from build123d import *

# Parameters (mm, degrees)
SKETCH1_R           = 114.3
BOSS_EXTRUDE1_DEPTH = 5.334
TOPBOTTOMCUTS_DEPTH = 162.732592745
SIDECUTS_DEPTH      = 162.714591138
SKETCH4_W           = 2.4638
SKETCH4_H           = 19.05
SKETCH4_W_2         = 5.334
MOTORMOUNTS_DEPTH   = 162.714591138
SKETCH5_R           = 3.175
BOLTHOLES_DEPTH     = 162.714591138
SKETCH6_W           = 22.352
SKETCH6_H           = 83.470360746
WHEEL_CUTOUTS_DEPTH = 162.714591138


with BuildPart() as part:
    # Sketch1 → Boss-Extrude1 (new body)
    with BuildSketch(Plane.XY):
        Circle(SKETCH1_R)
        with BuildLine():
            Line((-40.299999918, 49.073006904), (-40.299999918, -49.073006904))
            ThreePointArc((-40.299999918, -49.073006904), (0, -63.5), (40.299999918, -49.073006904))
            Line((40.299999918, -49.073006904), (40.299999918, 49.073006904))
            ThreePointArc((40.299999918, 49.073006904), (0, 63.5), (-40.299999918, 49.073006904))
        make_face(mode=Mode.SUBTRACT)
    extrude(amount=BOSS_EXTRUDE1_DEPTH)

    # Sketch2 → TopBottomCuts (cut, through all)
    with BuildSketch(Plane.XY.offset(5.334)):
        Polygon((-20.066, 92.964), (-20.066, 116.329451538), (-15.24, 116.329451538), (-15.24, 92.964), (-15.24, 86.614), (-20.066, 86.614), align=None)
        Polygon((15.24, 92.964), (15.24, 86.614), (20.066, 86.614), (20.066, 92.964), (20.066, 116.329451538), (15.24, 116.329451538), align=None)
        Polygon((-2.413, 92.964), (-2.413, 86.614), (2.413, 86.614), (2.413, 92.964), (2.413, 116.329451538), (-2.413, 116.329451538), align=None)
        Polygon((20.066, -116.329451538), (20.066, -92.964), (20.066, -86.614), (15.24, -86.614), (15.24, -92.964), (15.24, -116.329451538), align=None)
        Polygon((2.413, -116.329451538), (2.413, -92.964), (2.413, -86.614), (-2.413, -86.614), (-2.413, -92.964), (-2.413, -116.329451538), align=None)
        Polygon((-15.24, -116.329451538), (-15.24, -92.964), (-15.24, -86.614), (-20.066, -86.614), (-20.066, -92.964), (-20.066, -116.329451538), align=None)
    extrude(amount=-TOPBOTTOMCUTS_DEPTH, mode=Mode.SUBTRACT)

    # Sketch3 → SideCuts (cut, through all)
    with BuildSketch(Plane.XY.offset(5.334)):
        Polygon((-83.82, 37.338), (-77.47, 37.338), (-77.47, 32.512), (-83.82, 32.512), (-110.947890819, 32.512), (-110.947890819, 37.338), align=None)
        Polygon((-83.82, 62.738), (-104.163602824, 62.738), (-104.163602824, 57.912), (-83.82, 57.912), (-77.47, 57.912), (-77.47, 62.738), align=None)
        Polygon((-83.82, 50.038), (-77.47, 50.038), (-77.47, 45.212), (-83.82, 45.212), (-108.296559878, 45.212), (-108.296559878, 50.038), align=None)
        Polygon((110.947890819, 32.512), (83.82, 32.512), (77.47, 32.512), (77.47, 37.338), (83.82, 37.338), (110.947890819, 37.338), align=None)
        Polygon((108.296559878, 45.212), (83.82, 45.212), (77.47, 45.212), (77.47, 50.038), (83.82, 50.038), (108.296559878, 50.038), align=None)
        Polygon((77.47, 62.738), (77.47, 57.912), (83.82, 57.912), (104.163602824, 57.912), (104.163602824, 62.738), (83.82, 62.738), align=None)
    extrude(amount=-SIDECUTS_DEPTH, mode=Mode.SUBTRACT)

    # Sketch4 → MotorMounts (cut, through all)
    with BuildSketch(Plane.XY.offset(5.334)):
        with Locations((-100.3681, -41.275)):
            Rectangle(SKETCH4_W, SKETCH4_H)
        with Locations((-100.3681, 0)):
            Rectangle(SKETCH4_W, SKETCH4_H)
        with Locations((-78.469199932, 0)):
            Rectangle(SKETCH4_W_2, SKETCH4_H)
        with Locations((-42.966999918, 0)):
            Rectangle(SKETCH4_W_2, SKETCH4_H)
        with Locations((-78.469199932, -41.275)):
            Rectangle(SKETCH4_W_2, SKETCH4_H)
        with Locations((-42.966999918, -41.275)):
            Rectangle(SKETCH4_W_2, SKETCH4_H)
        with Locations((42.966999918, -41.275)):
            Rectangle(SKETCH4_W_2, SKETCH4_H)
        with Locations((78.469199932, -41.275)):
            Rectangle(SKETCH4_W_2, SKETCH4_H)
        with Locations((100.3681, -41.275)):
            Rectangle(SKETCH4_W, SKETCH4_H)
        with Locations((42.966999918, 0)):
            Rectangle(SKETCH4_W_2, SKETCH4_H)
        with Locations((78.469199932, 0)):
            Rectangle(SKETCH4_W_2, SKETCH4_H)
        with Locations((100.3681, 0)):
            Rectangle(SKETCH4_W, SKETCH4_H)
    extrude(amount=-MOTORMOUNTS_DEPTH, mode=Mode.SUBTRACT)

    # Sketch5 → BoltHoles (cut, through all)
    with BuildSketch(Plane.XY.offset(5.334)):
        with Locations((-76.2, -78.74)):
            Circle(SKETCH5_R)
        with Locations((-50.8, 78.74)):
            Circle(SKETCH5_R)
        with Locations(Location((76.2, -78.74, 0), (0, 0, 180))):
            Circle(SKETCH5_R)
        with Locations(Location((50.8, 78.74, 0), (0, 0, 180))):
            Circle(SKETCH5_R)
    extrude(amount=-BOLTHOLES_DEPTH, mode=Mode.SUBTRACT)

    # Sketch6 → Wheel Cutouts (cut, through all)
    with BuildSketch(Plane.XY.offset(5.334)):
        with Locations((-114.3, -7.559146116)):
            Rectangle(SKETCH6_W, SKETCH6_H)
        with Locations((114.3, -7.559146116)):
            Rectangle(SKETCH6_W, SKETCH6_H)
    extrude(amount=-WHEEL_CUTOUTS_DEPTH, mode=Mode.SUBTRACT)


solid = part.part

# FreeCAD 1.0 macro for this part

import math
import FreeCAD as App
import Part
import Sketcher

V = App.Vector
Q = App.Units.Quantity


def add_polygon(sketch, points):
    """Adds a closed chain of lines whose ends are joined by coincident constraints."""
    first, n = sketch.GeometryCount, len(points)
    for a, b in zip(points, points[1:] + points[:1]):
        sketch.addGeometry(Part.LineSegment(App.Vector(*a, 0), App.Vector(*b, 0)), False)
    for i in range(n):
        sketch.addConstraint(Sketcher.Constraint("Coincident", first + i, 2, first + (i + 1) % n, 1))

doc = App.newDocument("Part")
body = doc.addObject("PartDesign::Body", "Body")

# Sketch on XY plane
sketch1 = doc.addObject("Sketcher::SketchObject", "Sketch")
body.addObject(sketch1)
sketch1.AttachmentSupport = (doc.XY_Plane, [""])
sketch1.MapMode = "FlatFace"
sketch1.addGeometry(Part.Circle(V(0, 0, 0), V(0, 0, 1), 114.3), False)
sketch1.addGeometry(Part.LineSegment(V(-40.3, -49.073007, 0), V(-40.3, 49.073007, 0)), False)
sketch1.addGeometry(Part.ArcOfCircle(Part.Circle(V(0, 0, 0), V(0, 0, 1), 63.5), math.radians(50.606291), math.radians(129.393709)), False)
sketch1.addGeometry(Part.LineSegment(V(40.3, 49.073007, 0), V(40.3, -49.073007, 0)), False)
sketch1.addGeometry(Part.ArcOfCircle(Part.Circle(V(0, 0, 0), V(0, 0, 1), 63.5), math.radians(-129.393709), math.radians(-50.606291)), False)
sketch1.addConstraint(Sketcher.Constraint("Coincident", 1, 2, 2, 2))
sketch1.addConstraint(Sketcher.Constraint("Coincident", 2, 1, 3, 1))
sketch1.addConstraint(Sketcher.Constraint("Coincident", 3, 2, 4, 2))
sketch1.addConstraint(Sketcher.Constraint("Coincident", 4, 1, 1, 1))
sketch1.addConstraint(Sketcher.Constraint("Vertical", 1))
sketch1.addConstraint(Sketcher.Constraint("Vertical", 3))
sketch1.addConstraint(Sketcher.Constraint("Coincident", 0, 3, -1, 1))
sketch1.addConstraint(Sketcher.Constraint("Coincident", 2, 3, -1, 1))
sketch1.addConstraint(Sketcher.Constraint("Coincident", 4, 3, -1, 1))
sketch1.addConstraint(Sketcher.Constraint("Equal", 2, 4))
sketch1.addConstraint(Sketcher.Constraint("Horizontal", 1, 2, 2, 1))
sketch1.addConstraint(Sketcher.Constraint("Diameter", 0, Q("9 in")))
sketch1.addConstraint(Sketcher.Constraint("Radius", 2, Q("2.5 in")))
sketch1.addConstraint(Sketcher.Constraint("DistanceX", 1, 2, -1, 1, 40.3))
pad1 = doc.addObject("PartDesign::Pad", "Pad")
body.addObject(pad1)
pad1.Profile = sketch1
pad1.Length = Q("0.21 in")

# Sketch on XY plane
sketch2 = doc.addObject("Sketcher::SketchObject", "Sketch001")
body.addObject(sketch2)
sketch2.AttachmentSupport = (doc.XY_Plane, [""])
sketch2.MapMode = "FlatFace"
sketch2.AttachmentOffset = App.Placement(V(0, 0, 0.21 * 25.4), App.Rotation())
add_polygon(sketch2, [(-20.066, 116.329452), (-20.066, 86.614), (-15.24, 86.614), (-15.24, 116.329452)])  # lines 0-3
add_polygon(sketch2, [(15.24, 86.614), (20.066, 86.614), (20.066, 116.329452), (15.24, 116.329452)])  # lines 4-7
add_polygon(sketch2, [(-2.413, 86.614), (2.413, 86.614), (2.413, 116.329452), (-2.413, 116.329452)])  # lines 8-11
add_polygon(sketch2, [(20.066, -116.329452), (20.066, -86.614), (15.24, -86.614), (15.24, -116.329452)])  # lines 12-15
add_polygon(sketch2, [(2.413, -116.329452), (2.413, -86.614), (-2.413, -86.614), (-2.413, -116.329452)])  # lines 16-19
add_polygon(sketch2, [(-15.24, -116.329452), (-15.24, -86.614), (-20.066, -86.614), (-20.066, -116.329452)])  # lines 20-23
sketch2.addConstraint(Sketcher.Constraint("Vertical", 0))
sketch2.addConstraint(Sketcher.Constraint("Horizontal", 1))
sketch2.addConstraint(Sketcher.Constraint("Vertical", 2))
sketch2.addConstraint(Sketcher.Constraint("Horizontal", 3))
sketch2.addConstraint(Sketcher.Constraint("Horizontal", 4))
sketch2.addConstraint(Sketcher.Constraint("Vertical", 5))
sketch2.addConstraint(Sketcher.Constraint("Horizontal", 6))
sketch2.addConstraint(Sketcher.Constraint("Vertical", 7))
sketch2.addConstraint(Sketcher.Constraint("Horizontal", 8))
sketch2.addConstraint(Sketcher.Constraint("Vertical", 9))
sketch2.addConstraint(Sketcher.Constraint("Horizontal", 10))
sketch2.addConstraint(Sketcher.Constraint("Vertical", 11))
sketch2.addConstraint(Sketcher.Constraint("Vertical", 12))
sketch2.addConstraint(Sketcher.Constraint("Horizontal", 13))
sketch2.addConstraint(Sketcher.Constraint("Vertical", 14))
sketch2.addConstraint(Sketcher.Constraint("Horizontal", 15))
sketch2.addConstraint(Sketcher.Constraint("Vertical", 16))
sketch2.addConstraint(Sketcher.Constraint("Horizontal", 17))
sketch2.addConstraint(Sketcher.Constraint("Vertical", 18))
sketch2.addConstraint(Sketcher.Constraint("Horizontal", 19))
sketch2.addConstraint(Sketcher.Constraint("Vertical", 20))
sketch2.addConstraint(Sketcher.Constraint("Horizontal", 21))
sketch2.addConstraint(Sketcher.Constraint("Vertical", 22))
sketch2.addConstraint(Sketcher.Constraint("Horizontal", 23))
sketch2.addConstraint(Sketcher.Constraint("Symmetric", 0, 2, 12, 2, -1, 1))
sketch2.addConstraint(Sketcher.Constraint("Symmetric", 2, 2, 14, 2, -1, 1))
sketch2.addConstraint(Sketcher.Constraint("Symmetric", 11, 2, 16, 2, -1, 1))
sketch2.addConstraint(Sketcher.Constraint("Symmetric", 9, 2, 18, 2, -1, 1))
sketch2.addConstraint(Sketcher.Constraint("Symmetric", 7, 2, 20, 2, -1, 1))
sketch2.addConstraint(Sketcher.Constraint("Symmetric", 5, 2, 22, 2, -1, 1))
sketch2.addConstraint(Sketcher.Constraint("Symmetric", 0, 2, 4, 2, -2))
sketch2.addConstraint(Sketcher.Constraint("Symmetric", 2, 2, 6, 2, -2))
sketch2.addConstraint(Sketcher.Constraint("Horizontal", 7, 2, 8, 2))
sketch2.addConstraint(Sketcher.Constraint("Horizontal", 6, 2, 9, 2))
sketch2.addConstraint(Sketcher.Constraint("Vertical", 9, 2, 16, 2))
sketch2.addConstraint(Sketcher.Constraint("Equal", 6, 8))
sketch2.addConstraint(Sketcher.Constraint("DistanceX", 1, 1, 1, 2, Q("0.19 in")))
sketch2.addConstraint(Sketcher.Constraint("DistanceX", 1, 2, -1, 1, Q("0.6 in")))
sketch2.addConstraint(Sketcher.Constraint("DistanceY", -1, 1, 0, 2, Q("3.41 in")))
sketch2.addConstraint(Sketcher.Constraint("DistanceY", 0, 2, 0, 1, 29.715452))
pocket1 = doc.addObject("PartDesign::Pocket", "Pocket")
body.addObject(pocket1)
pocket1.Profile = sketch2
pocket1.Type = "ThroughAll"

# Sketch on XY plane
sketch3 = doc.addObject("Sketcher::SketchObject", "Sketch002")
body.addObject(sketch3)
sketch3.AttachmentSupport = (doc.XY_Plane, [""])
sketch3.MapMode = "FlatFace"
sketch3.AttachmentOffset = App.Placement(V(0, 0, 0.21 * 25.4), App.Rotation())
add_polygon(sketch3, [(-77.47, 37.338), (-110.947891, 37.338), (-110.947891, 32.512), (-77.47, 32.512)])  # lines 0-3
add_polygon(sketch3, [(-104.163603, 62.738), (-104.163603, 57.912), (-77.47, 57.912), (-77.47, 62.738)])  # lines 4-7
add_polygon(sketch3, [(-77.47, 50.038), (-108.29656, 50.038), (-108.29656, 45.212), (-77.47, 45.212)])  # lines 8-11
add_polygon(sketch3, [(77.47, 32.512), (110.947891, 32.512), (110.947891, 37.338), (77.47, 37.338)])  # lines 12-15
add_polygon(sketch3, [(77.47, 45.212), (108.29656, 45.212), (108.29656, 50.038), (77.47, 50.038)])  # lines 16-19
add_polygon(sketch3, [(77.47, 62.738), (77.47, 57.912), (104.163603, 57.912), (104.163603, 62.738)])  # lines 20-23
sketch3.addConstraint(Sketcher.Constraint("Horizontal", 0))
sketch3.addConstraint(Sketcher.Constraint("Vertical", 1))
sketch3.addConstraint(Sketcher.Constraint("Horizontal", 2))
sketch3.addConstraint(Sketcher.Constraint("Vertical", 3))
sketch3.addConstraint(Sketcher.Constraint("Vertical", 4))
sketch3.addConstraint(Sketcher.Constraint("Horizontal", 5))
sketch3.addConstraint(Sketcher.Constraint("Vertical", 6))
sketch3.addConstraint(Sketcher.Constraint("Horizontal", 7))
sketch3.addConstraint(Sketcher.Constraint("Horizontal", 8))
sketch3.addConstraint(Sketcher.Constraint("Vertical", 9))
sketch3.addConstraint(Sketcher.Constraint("Horizontal", 10))
sketch3.addConstraint(Sketcher.Constraint("Vertical", 11))
sketch3.addConstraint(Sketcher.Constraint("Horizontal", 12))
sketch3.addConstraint(Sketcher.Constraint("Vertical", 13))
sketch3.addConstraint(Sketcher.Constraint("Horizontal", 14))
sketch3.addConstraint(Sketcher.Constraint("Vertical", 15))
sketch3.addConstraint(Sketcher.Constraint("Horizontal", 16))
sketch3.addConstraint(Sketcher.Constraint("Vertical", 17))
sketch3.addConstraint(Sketcher.Constraint("Horizontal", 18))
sketch3.addConstraint(Sketcher.Constraint("Vertical", 19))
sketch3.addConstraint(Sketcher.Constraint("Vertical", 20))
sketch3.addConstraint(Sketcher.Constraint("Horizontal", 21))
sketch3.addConstraint(Sketcher.Constraint("Vertical", 22))
sketch3.addConstraint(Sketcher.Constraint("Horizontal", 23))
sketch3.addConstraint(Sketcher.Constraint("Symmetric", 1, 2, 12, 2, -2))
sketch3.addConstraint(Sketcher.Constraint("Symmetric", 3, 2, 14, 2, -2))
sketch3.addConstraint(Sketcher.Constraint("Symmetric", 9, 2, 16, 2, -2))
sketch3.addConstraint(Sketcher.Constraint("Symmetric", 11, 2, 18, 2, -2))
sketch3.addConstraint(Sketcher.Constraint("Symmetric", 5, 2, 20, 2, -2))
sketch3.addConstraint(Sketcher.Constraint("Symmetric", 7, 2, 22, 2, -2))
sketch3.addConstraint(Sketcher.Constraint("Vertical", 3, 2, 5, 2))
sketch3.addConstraint(Sketcher.Constraint("Vertical", 6, 2, 10, 2))
sketch3.addConstraint(Sketcher.Constraint("Equal", 3, 4))
sketch3.addConstraint(Sketcher.Constraint("Equal", 6, 9))
sketch3.addConstraint(Sketcher.Constraint("DistanceY", 1, 2, 4, 2, Q("1 in")))
sketch3.addConstraint(Sketcher.Constraint("DistanceY", 1, 2, 1, 1, Q("0.19 in")))
sketch3.addConstraint(Sketcher.Constraint("DistanceY", 0, 2, 8, 2, Q("0.5 in")))
sketch3.addConstraint(Sketcher.Constraint("DistanceX", 3, 2, 14, 2, Q("6.1 in")))
sketch3.addConstraint(Sketcher.Constraint("DistanceY", -1, 1, 0, 2, Q("1.47 in")))
sketch3.addConstraint(Sketcher.Constraint("DistanceX", 0, 2, 0, 1, 33.477891))
sketch3.addConstraint(Sketcher.Constraint("DistanceX", 8, 2, 8, 1, 30.82656))
sketch3.addConstraint(Sketcher.Constraint("DistanceX", 5, 1, 5, 2, 26.693603))
pocket2 = doc.addObject("PartDesign::Pocket", "Pocket001")
body.addObject(pocket2)
pocket2.Profile = sketch3
pocket2.Type = "ThroughAll"

# Sketch on XY plane
sketch4 = doc.addObject("Sketcher::SketchObject", "Sketch003")
body.addObject(sketch4)
sketch4.AttachmentSupport = (doc.XY_Plane, [""])
sketch4.MapMode = "FlatFace"
sketch4.AttachmentOffset = App.Placement(V(0, 0, 0.21 * 25.4), App.Rotation())
add_polygon(sketch4, [(-101.6, -31.75), (-101.6, -50.8), (-99.1362, -50.8), (-99.1362, -31.75)])  # lines 0-3
add_polygon(sketch4, [(-101.6, 9.525), (-101.6, -9.525), (-99.1362, -9.525), (-99.1362, 9.525)])  # lines 4-7
add_polygon(sketch4, [(-81.1362, 9.525), (-81.1362, -9.525), (-75.8022, -9.525), (-75.8022, 9.525)])  # lines 8-11
add_polygon(sketch4, [(-45.634, 9.525), (-45.634, -9.525), (-40.3, -9.525), (-40.3, 9.525)])  # lines 12-15
add_polygon(sketch4, [(-81.1362, -31.75), (-81.1362, -50.8), (-75.8022, -50.8), (-75.8022, -31.75)])  # lines 16-19
add_polygon(sketch4, [(-45.634, -31.75), (-45.634, -50.8), (-40.3, -50.8), (-40.3, -31.75)])  # lines 20-23
add_polygon(sketch4, [(40.3, -31.75), (40.3, -50.8), (45.634, -50.8), (45.634, -31.75)])  # lines 24-27
add_polygon(sketch4, [(75.8022, -31.75), (75.8022, -50.8), (81.1362, -50.8), (81.1362, -31.75)])  # lines 28-31
add_polygon(sketch4, [(99.1362, -31.75), (99.1362, -50.8), (101.6, -50.8), (101.6, -31.75)])  # lines 32-35
add_polygon(sketch4, [(40.3, 9.525), (40.3, -9.525), (45.634, -9.525), (45.634, 9.525)])  # lines 36-39
add_polygon(sketch4, [(75.8022, 9.525), (75.8022, -9.525), (81.1362, -9.525), (81.1362, 9.525)])  # lines 40-43
add_polygon(sketch4, [(99.1362, 9.525), (99.1362, -9.525), (101.6, -9.525), (101.6, 9.525)])  # lines 44-47
sketch4.addConstraint(Sketcher.Constraint("Vertical", 0))
sketch4.addConstraint(Sketcher.Constraint("Horizontal", 1))
sketch4.addConstraint(Sketcher.Constraint("Vertical", 2))
sketch4.addConstraint(Sketcher.Constraint("Horizontal", 3))
sketch4.addConstraint(Sketcher.Constraint("Vertical", 4))
sketch4.addConstraint(Sketcher.Constraint("Horizontal", 5))
sketch4.addConstraint(Sketcher.Constraint("Vertical", 6))
sketch4.addConstraint(Sketcher.Constraint("Horizontal", 7))
sketch4.addConstraint(Sketcher.Constraint("Vertical", 8))
sketch4.addConstraint(Sketcher.Constraint("Horizontal", 9))
sketch4.addConstraint(Sketcher.Constraint("Vertical", 10))
sketch4.addConstraint(Sketcher.Constraint("Horizontal", 11))
sketch4.addConstraint(Sketcher.Constraint("Vertical", 12))
sketch4.addConstraint(Sketcher.Constraint("Horizontal", 13))
sketch4.addConstraint(Sketcher.Constraint("Vertical", 14))
sketch4.addConstraint(Sketcher.Constraint("Horizontal", 15))
sketch4.addConstraint(Sketcher.Constraint("Vertical", 16))
sketch4.addConstraint(Sketcher.Constraint("Horizontal", 17))
sketch4.addConstraint(Sketcher.Constraint("Vertical", 18))
sketch4.addConstraint(Sketcher.Constraint("Horizontal", 19))
sketch4.addConstraint(Sketcher.Constraint("Vertical", 20))
sketch4.addConstraint(Sketcher.Constraint("Horizontal", 21))
sketch4.addConstraint(Sketcher.Constraint("Vertical", 22))
sketch4.addConstraint(Sketcher.Constraint("Horizontal", 23))
sketch4.addConstraint(Sketcher.Constraint("Vertical", 24))
sketch4.addConstraint(Sketcher.Constraint("Horizontal", 25))
sketch4.addConstraint(Sketcher.Constraint("Vertical", 26))
sketch4.addConstraint(Sketcher.Constraint("Horizontal", 27))
sketch4.addConstraint(Sketcher.Constraint("Vertical", 28))
sketch4.addConstraint(Sketcher.Constraint("Horizontal", 29))
sketch4.addConstraint(Sketcher.Constraint("Vertical", 30))
sketch4.addConstraint(Sketcher.Constraint("Horizontal", 31))
sketch4.addConstraint(Sketcher.Constraint("Vertical", 32))
sketch4.addConstraint(Sketcher.Constraint("Horizontal", 33))
sketch4.addConstraint(Sketcher.Constraint("Vertical", 34))
sketch4.addConstraint(Sketcher.Constraint("Horizontal", 35))
sketch4.addConstraint(Sketcher.Constraint("Vertical", 36))
sketch4.addConstraint(Sketcher.Constraint("Horizontal", 37))
sketch4.addConstraint(Sketcher.Constraint("Vertical", 38))
sketch4.addConstraint(Sketcher.Constraint("Horizontal", 39))
sketch4.addConstraint(Sketcher.Constraint("Vertical", 40))
sketch4.addConstraint(Sketcher.Constraint("Horizontal", 41))
sketch4.addConstraint(Sketcher.Constraint("Vertical", 42))
sketch4.addConstraint(Sketcher.Constraint("Horizontal", 43))
sketch4.addConstraint(Sketcher.Constraint("Vertical", 44))
sketch4.addConstraint(Sketcher.Constraint("Horizontal", 45))
sketch4.addConstraint(Sketcher.Constraint("Vertical", 46))
sketch4.addConstraint(Sketcher.Constraint("Horizontal", 47))
sketch4.addConstraint(Sketcher.Constraint("Symmetric", 14, 2, 36, 2, -1, 1))
sketch4.addConstraint(Sketcher.Constraint("Symmetric", 12, 2, 38, 2, -1, 1))
sketch4.addConstraint(Sketcher.Constraint("Symmetric", 10, 2, 40, 2, -1, 1))
sketch4.addConstraint(Sketcher.Constraint("Symmetric", 8, 2, 42, 2, -1, 1))
sketch4.addConstraint(Sketcher.Constraint("Symmetric", 6, 2, 44, 2, -1, 1))
sketch4.addConstraint(Sketcher.Constraint("Symmetric", 4, 2, 46, 2, -1, 1))
sketch4.addConstraint(Sketcher.Constraint("Symmetric", 21, 2, 24, 2, -2))
sketch4.addConstraint(Sketcher.Constraint("Symmetric", 23, 2, 26, 2, -2))
sketch4.addConstraint(Sketcher.Constraint("Symmetric", 17, 2, 28, 2, -2))
sketch4.addConstraint(Sketcher.Constraint("Symmetric", 19, 2, 30, 2, -2))
sketch4.addConstraint(Sketcher.Constraint("Symmetric", 1, 2, 32, 2, -2))
sketch4.addConstraint(Sketcher.Constraint("Symmetric", 3, 2, 34, 2, -2))
sketch4.addConstraint(Sketcher.Constraint("Horizontal", 5, 2, 8, 2))
sketch4.addConstraint(Sketcher.Constraint("Horizontal", 7, 2, 10, 2))
sketch4.addConstraint(Sketcher.Constraint("Horizontal", 9, 2, 12, 2))
sketch4.addConstraint(Sketcher.Constraint("Horizontal", 11, 2, 14, 2))
sketch4.addConstraint(Sketcher.Constraint("Horizontal", 1, 2, 16, 2))
sketch4.addConstraint(Sketcher.Constraint("Horizontal", 3, 2, 18, 2))
sketch4.addConstraint(Sketcher.Constraint("Horizontal", 17, 2, 20, 2))
sketch4.addConstraint(Sketcher.Constraint("Horizontal", 19, 2, 22, 2))
sketch4.addConstraint(Sketcher.Constraint("Horizontal", 13, 2, 36, 2))
sketch4.addConstraint(Sketcher.Constraint("Vertical", 3, 2, 4, 2))
sketch4.addConstraint(Sketcher.Constraint("Vertical", 2, 2, 5, 2))
sketch4.addConstraint(Sketcher.Constraint("Vertical", 11, 2, 16, 2))
sketch4.addConstraint(Sketcher.Constraint("Vertical", 10, 2, 17, 2))
sketch4.addConstraint(Sketcher.Constraint("Vertical", 15, 2, 20, 2))
sketch4.addConstraint(Sketcher.Constraint("Vertical", 14, 2, 21, 2))
sketch4.addConstraint(Sketcher.Constraint("Equal", 11, 13))
sketch4.addConstraint(Sketcher.Constraint("Equal", 2, 4))
sketch4.addConstraint(Sketcher.Constraint("DistanceX", 0, 2, -1, 1, Q("4 in")))
sketch4.addConstraint(Sketcher.Constraint("DistanceY", 0, 2, -1, 1, Q("2 in")))
sketch4.addConstraint(Sketcher.Constraint("DistanceX", 9, 1, 9, 2, Q("0.21 in")))
sketch4.addConstraint(Sketcher.Constraint("DistanceY", 0, 2, 0, 1, Q("0.75 in")))
sketch4.addConstraint(Sketcher.Constraint("DistanceX", 1, 1, 1, 2, Q("0.097 in")))
sketch4.addConstraint(Sketcher.Constraint("DistanceX", 8, 2, -1, 1, 81.1362))
sketch4.addConstraint(Sketcher.Constraint("DistanceX", 12, 2, -1, 1, 45.634))
pocket3 = doc.addObject("PartDesign::Pocket", "Pocket002")
body.addObject(pocket3)
pocket3.Profile = sketch4
pocket3.Type = "ThroughAll"

# Sketch on XY plane
sketch5 = doc.addObject("Sketcher::SketchObject", "Sketch004")
body.addObject(sketch5)
sketch5.AttachmentSupport = (doc.XY_Plane, [""])
sketch5.MapMode = "FlatFace"
sketch5.AttachmentOffset = App.Placement(V(0, 0, 0.21 * 25.4), App.Rotation())
sketch5.addGeometry(Part.Circle(V(-76.2, -78.74, 0), V(0, 0, 1), 3.175), False)
sketch5.addGeometry(Part.Circle(V(-50.8, 78.74, 0), V(0, 0, 1), 3.175), False)
sketch5.addGeometry(Part.Circle(V(76.2, -78.74, 0), V(0, 0, 1), 3.175), False)
sketch5.addGeometry(Part.Circle(V(50.8, 78.74, 0), V(0, 0, 1), 3.175), False)
sketch5.addConstraint(Sketcher.Constraint("Equal", 0, 1))
sketch5.addConstraint(Sketcher.Constraint("Equal", 1, 2))
sketch5.addConstraint(Sketcher.Constraint("Equal", 2, 3))
sketch5.addConstraint(Sketcher.Constraint("Symmetric", 0, 3, 2, 3, -2))
sketch5.addConstraint(Sketcher.Constraint("Symmetric", 1, 3, 3, 3, -2))
sketch5.addConstraint(Sketcher.Constraint("Diameter", 0, Q("0.25 in")))
sketch5.addConstraint(Sketcher.Constraint("DistanceX", 0, 3, -1, 1, Q("3 in")))
sketch5.addConstraint(Sketcher.Constraint("DistanceX", 1, 3, -1, 1, Q("2 in")))
sketch5.addConstraint(Sketcher.Constraint("DistanceY", 0, 3, -1, 1, Q("3.1 in")))
sketch5.addConstraint(Sketcher.Constraint("DistanceY", -1, 1, 1, 3, Q("3.1 in")))
pocket4 = doc.addObject("PartDesign::Pocket", "Pocket003")
body.addObject(pocket4)
pocket4.Profile = sketch5
pocket4.Type = "ThroughAll"

# Sketch on XY plane
sketch6 = doc.addObject("Sketcher::SketchObject", "Sketch005")
body.addObject(sketch6)
sketch6.AttachmentSupport = (doc.XY_Plane, [""])
sketch6.MapMode = "FlatFace"
sketch6.AttachmentOffset = App.Placement(V(0, 0, 0.21 * 25.4), App.Rotation())
add_polygon(sketch6, [(-125.476, 34.176034), (-125.476, -49.294326), (-103.124, -49.294326), (-103.124, 34.176034)])  # lines 0-3
add_polygon(sketch6, [(103.124, 34.176034), (103.124, -49.294326), (125.476, -49.294326), (125.476, 34.176034)])  # lines 4-7
sketch6.addConstraint(Sketcher.Constraint("Vertical", 0))
sketch6.addConstraint(Sketcher.Constraint("Horizontal", 1))
sketch6.addConstraint(Sketcher.Constraint("Vertical", 2))
sketch6.addConstraint(Sketcher.Constraint("Horizontal", 3))
sketch6.addConstraint(Sketcher.Constraint("Vertical", 4))
sketch6.addConstraint(Sketcher.Constraint("Horizontal", 5))
sketch6.addConstraint(Sketcher.Constraint("Vertical", 6))
sketch6.addConstraint(Sketcher.Constraint("Horizontal", 7))
sketch6.addConstraint(Sketcher.Constraint("Symmetric", 1, 2, 4, 2, -2))
sketch6.addConstraint(Sketcher.Constraint("Symmetric", 3, 2, 6, 2, -2))
sketch6.addConstraint(Sketcher.Constraint("DistanceX", 0, 2, 4, 2, Q("9 in")))
sketch6.addConstraint(Sketcher.Constraint("DistanceX", 1, 1, 1, 2, Q("0.88 in")))
sketch6.addConstraint(Sketcher.Constraint("DistanceY", 0, 2, 0, 1, 83.470361))
sketch6.addConstraint(Sketcher.Constraint("DistanceY", 0, 2, -1, 1, 49.294326))
pocket5 = doc.addObject("PartDesign::Pocket", "Pocket004")
body.addObject(pocket5)
pocket5.Profile = sketch6
pocket5.Type = "ThroughAll"

doc.recompute()
